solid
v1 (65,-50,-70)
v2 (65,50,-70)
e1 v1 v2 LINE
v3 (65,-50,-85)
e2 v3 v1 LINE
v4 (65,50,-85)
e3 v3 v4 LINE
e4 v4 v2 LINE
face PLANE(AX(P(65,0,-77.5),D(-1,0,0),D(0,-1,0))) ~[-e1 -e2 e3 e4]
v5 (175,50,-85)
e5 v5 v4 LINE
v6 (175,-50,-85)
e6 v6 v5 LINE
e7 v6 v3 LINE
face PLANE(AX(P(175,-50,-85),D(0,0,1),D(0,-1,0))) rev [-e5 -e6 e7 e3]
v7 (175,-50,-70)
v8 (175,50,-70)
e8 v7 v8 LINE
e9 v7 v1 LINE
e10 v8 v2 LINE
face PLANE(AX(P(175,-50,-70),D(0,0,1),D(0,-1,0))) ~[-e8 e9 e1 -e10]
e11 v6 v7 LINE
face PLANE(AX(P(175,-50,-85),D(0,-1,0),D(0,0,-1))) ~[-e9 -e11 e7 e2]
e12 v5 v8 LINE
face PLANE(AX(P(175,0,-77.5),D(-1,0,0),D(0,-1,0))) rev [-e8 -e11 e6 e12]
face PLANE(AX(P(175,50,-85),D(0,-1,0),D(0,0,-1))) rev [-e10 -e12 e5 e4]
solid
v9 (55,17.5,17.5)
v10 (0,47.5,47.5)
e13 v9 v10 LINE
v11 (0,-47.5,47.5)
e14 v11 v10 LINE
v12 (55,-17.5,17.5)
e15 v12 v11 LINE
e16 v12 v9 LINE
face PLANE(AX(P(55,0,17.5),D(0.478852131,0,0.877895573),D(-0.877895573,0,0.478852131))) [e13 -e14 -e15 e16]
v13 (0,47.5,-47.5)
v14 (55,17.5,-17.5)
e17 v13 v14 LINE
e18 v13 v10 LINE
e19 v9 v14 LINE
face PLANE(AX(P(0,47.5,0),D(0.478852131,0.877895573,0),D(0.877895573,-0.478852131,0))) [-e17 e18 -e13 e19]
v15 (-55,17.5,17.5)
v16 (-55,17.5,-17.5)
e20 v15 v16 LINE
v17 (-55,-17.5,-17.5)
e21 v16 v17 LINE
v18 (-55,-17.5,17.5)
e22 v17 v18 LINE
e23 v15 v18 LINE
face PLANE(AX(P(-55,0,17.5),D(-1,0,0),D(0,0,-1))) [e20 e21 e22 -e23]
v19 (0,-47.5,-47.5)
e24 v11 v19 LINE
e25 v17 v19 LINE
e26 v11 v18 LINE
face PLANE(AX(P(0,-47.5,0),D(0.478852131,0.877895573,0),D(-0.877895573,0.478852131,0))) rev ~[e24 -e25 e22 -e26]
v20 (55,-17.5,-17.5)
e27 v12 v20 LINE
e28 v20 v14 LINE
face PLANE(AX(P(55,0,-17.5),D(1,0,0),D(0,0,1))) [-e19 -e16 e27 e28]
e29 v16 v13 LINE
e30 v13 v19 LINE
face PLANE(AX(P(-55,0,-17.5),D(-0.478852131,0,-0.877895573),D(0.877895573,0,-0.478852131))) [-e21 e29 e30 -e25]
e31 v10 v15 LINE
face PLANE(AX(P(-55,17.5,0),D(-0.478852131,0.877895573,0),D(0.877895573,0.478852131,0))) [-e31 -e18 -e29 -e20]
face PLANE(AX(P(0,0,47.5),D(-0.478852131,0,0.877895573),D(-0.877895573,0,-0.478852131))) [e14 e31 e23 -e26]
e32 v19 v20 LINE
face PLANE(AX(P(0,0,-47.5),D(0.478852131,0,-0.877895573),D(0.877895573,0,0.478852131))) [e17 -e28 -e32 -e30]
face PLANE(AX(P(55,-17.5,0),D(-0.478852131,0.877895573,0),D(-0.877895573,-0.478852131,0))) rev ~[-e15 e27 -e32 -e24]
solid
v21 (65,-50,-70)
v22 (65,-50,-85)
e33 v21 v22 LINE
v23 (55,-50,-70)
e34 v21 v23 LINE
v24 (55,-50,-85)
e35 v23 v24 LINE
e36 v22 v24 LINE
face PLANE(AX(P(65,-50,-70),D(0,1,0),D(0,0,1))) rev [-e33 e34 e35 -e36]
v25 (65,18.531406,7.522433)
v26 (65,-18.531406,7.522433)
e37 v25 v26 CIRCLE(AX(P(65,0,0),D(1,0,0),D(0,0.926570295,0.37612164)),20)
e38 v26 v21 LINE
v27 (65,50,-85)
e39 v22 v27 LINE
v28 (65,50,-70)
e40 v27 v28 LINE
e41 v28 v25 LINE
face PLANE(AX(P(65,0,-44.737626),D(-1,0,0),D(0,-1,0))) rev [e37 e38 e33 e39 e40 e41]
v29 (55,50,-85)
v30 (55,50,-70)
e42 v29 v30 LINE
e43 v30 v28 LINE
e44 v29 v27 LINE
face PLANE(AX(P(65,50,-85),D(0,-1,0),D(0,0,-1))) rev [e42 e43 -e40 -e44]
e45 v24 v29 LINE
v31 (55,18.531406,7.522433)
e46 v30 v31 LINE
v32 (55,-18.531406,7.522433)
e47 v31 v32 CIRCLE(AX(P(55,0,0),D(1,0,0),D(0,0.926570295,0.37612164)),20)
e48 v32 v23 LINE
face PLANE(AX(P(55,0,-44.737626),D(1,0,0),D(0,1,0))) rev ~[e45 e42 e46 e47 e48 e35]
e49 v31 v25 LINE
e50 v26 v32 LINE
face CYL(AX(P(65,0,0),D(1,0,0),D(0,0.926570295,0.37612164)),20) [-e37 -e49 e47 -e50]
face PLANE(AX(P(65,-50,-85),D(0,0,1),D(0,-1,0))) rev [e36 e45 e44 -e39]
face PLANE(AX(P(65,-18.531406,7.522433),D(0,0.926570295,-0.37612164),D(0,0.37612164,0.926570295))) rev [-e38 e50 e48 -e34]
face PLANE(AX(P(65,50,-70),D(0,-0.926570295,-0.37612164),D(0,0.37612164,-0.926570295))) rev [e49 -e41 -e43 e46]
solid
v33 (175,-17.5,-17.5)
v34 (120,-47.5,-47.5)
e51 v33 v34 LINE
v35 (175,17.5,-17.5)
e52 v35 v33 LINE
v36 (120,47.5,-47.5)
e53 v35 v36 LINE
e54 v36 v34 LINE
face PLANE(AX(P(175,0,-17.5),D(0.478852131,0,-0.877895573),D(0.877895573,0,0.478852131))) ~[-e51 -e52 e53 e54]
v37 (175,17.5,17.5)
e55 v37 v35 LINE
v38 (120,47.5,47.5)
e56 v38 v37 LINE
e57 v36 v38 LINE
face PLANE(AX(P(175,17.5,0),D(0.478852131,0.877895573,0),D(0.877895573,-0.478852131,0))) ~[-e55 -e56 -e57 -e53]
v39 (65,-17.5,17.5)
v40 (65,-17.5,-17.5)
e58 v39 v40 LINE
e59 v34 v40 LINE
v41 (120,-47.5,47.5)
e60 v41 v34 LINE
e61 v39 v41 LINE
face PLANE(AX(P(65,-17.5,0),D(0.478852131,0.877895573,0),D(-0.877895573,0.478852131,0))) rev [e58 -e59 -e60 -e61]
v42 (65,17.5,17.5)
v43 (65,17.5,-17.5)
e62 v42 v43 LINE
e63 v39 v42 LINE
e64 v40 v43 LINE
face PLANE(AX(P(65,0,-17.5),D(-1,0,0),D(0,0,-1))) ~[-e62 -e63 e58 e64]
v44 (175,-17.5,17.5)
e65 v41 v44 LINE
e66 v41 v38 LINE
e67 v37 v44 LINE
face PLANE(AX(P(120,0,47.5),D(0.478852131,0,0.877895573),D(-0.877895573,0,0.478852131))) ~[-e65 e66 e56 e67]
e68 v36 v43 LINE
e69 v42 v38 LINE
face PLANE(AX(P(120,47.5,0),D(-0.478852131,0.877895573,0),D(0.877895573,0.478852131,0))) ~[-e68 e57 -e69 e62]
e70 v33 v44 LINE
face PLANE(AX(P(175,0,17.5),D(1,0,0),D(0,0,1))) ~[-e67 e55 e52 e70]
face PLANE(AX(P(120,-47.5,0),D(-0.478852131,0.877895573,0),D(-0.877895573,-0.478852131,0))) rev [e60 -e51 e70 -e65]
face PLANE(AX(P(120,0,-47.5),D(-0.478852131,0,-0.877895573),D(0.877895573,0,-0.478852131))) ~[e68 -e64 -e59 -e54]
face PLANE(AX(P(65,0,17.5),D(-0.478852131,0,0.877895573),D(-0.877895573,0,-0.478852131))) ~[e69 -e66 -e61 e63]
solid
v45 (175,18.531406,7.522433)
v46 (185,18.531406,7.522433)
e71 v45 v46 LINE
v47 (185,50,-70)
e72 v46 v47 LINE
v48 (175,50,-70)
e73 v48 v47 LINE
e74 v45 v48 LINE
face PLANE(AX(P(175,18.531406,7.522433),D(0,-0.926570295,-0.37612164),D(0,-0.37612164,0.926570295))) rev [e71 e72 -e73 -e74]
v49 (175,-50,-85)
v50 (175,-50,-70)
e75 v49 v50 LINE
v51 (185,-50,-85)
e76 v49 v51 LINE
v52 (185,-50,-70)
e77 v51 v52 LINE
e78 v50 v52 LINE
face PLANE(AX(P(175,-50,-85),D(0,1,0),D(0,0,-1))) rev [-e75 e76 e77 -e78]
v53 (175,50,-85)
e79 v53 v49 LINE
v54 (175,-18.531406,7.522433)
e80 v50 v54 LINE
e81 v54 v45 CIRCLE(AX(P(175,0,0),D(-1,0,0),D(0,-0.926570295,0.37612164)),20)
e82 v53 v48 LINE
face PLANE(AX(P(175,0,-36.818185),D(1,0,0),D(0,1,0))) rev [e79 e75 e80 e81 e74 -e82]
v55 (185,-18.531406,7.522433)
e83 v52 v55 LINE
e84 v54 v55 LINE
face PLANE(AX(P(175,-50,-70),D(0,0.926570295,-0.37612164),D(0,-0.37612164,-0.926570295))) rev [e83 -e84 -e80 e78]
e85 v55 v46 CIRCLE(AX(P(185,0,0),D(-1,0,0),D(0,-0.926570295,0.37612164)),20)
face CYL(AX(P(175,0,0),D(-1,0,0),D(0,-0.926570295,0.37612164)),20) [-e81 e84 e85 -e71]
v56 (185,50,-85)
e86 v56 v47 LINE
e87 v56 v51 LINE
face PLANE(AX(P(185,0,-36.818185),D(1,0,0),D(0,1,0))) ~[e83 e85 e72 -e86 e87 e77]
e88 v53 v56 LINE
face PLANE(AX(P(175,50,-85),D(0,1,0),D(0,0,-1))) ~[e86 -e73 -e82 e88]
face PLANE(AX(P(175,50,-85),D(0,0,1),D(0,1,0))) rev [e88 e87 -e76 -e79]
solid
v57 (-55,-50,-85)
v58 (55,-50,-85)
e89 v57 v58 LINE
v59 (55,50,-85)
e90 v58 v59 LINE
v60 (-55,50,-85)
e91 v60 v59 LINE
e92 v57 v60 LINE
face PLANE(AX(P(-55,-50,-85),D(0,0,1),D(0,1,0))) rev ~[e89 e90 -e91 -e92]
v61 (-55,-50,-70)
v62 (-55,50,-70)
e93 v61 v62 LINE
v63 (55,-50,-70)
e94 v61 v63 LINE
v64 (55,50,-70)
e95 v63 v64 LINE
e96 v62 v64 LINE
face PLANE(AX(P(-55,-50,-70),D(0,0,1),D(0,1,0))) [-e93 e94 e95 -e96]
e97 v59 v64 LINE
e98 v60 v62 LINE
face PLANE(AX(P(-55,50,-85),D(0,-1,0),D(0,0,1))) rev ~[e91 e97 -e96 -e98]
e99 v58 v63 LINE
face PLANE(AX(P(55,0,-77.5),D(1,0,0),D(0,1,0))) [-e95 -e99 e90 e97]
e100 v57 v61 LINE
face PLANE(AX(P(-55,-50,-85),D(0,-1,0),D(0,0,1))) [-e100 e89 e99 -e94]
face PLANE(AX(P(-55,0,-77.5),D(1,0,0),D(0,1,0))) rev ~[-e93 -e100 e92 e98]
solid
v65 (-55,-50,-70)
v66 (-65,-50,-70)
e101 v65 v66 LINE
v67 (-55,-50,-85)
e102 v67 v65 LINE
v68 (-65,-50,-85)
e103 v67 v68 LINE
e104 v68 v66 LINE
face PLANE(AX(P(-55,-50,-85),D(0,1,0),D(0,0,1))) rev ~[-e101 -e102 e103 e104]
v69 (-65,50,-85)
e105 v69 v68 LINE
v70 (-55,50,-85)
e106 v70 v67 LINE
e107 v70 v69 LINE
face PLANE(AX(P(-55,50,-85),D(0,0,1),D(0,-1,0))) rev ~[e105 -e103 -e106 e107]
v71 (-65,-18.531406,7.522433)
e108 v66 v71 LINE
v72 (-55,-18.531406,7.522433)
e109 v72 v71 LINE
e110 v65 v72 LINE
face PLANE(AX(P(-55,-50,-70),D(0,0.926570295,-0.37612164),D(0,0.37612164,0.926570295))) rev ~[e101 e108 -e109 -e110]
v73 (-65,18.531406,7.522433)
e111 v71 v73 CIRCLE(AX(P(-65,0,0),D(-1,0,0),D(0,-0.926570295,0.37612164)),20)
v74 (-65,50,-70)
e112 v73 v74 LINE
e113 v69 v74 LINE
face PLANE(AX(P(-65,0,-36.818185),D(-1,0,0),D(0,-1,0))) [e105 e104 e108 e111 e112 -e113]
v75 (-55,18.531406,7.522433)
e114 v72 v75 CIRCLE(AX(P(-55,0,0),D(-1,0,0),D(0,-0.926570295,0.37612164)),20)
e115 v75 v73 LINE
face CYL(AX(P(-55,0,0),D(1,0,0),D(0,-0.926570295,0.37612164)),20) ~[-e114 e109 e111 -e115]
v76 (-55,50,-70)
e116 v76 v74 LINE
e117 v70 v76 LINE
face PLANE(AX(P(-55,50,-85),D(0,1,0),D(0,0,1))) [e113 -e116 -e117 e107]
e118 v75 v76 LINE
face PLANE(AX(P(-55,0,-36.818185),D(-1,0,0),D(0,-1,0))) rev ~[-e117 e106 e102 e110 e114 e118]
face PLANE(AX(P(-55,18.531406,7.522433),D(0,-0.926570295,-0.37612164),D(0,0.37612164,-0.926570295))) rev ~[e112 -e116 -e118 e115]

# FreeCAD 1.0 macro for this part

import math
import FreeCAD as App
import Part
import Sketcher
from FreeCAD import Vector
Q = App.Units.Quantity


def add_polygon(sketch, points):
    """Adds a closed chain of lines whose ends are joined by coincident constraints."""
    first, n = sketch.GeometryCount, len(points)
    for a, b in zip(points, points[1:] + points[:1]):
        sketch.addGeometry(Part.LineSegment(App.Vector(*a, 0), App.Vector(*b, 0)), False)
    for i in range(n):
        sketch.addConstraint(Sketcher.Constraint("Coincident", first + i, 2, first + (i + 1) % n, 1))

doc = App.newDocument("Part")
params = doc.addObject("Spreadsheet::Sheet", "Params")
for row, (alias, value) in enumerate([
    ("sketch1_height", "35 mm"),
    ("pad1_length", "95 mm"),
    ("sketch2_width", "55 mm"),
    ("sketch2_height", "30 mm"),
    ("pocket1_length", "110 mm"),
    ("sketch3_radius", "20 mm"),
    ("sketch3_width", "100 mm"),
    ("sketch3_height", "15 mm"),
    ("pad2_length", "10 mm"),
    ("sketch4_radius", "20 mm"),
    ("sketch4_width", "100 mm"),
    ("sketch4_height", "15 mm"),
    ("pad3_length", "5 mm"),
    ("sketch5_width", "100 mm"),
    ("sketch5_height", "15 mm"),
    ("pad4_length", "110 mm"),
], start=1):
    params.set(f"A{row}", alias)
    params.set(f"B{row}", "=" + value)
    params.setAlias(f"B{row}", alias)

body = doc.addObject("PartDesign::Body", "Body")

# Sketch on XZ plane
sketch1 = body.newObject("Sketcher::SketchObject", "Sketch")
sketch1.AttachmentSupport = (doc.getObject("XZ_Plane"), [""])
sketch1.MapMode = "FlatFace"
add_polygon(sketch1, [(0, 47.5), (-55, 17.5), (-55, -17.5), (0, -47.5), (55, -17.5), (55, 17.5)])  # lines 0-5
sketch1.addConstraint(Sketcher.Constraint("Vertical", 1))
sketch1.addConstraint(Sketcher.Constraint("Vertical", 4))
sketch1.addConstraint(Sketcher.Constraint("Symmetric", 0, 2, 3, 2, -1, 1))
sketch1.addConstraint(Sketcher.Constraint("Symmetric", 2, 2, 5, 2, -1, 1))
sketch1.addConstraint(Sketcher.Constraint("PointOnObject", 2, 2, -2))
sketch1.addConstraint(Sketcher.Constraint("Parallel", 2, 5))
sketch1.addConstraint(Sketcher.Constraint("Horizontal", 1, 2, 3, 2))
sketch1.addConstraint(Sketcher.Constraint("DistanceY", 1, 2, 1, 1, Q("35 mm")))
sketch1.addConstraint(Sketcher.Constraint("DistanceX", 0, 2, -1, 1, Q("55 mm")))
sketch1.addConstraint(Sketcher.Constraint("DistanceY", 2, 2, 1, 2, Q("30 mm")))
sketch1.setExpression("Constraints[13]", "Params.sketch1_height")
pad1 = body.newObject("PartDesign::Pad", "Pad")
pad1.Profile = sketch1
pad1.setExpression("Length", "Params.pad1_length")
pad1.Midplane = True

# Sketch on XY plane
sketch2 = body.newObject("Sketcher::SketchObject", "Sketch001")
sketch2.AttachmentSupport = (doc.getObject("XY_Plane"), [""])
sketch2.MapMode = "FlatFace"
add_polygon(sketch2, [(-55, 17.5), (0, 47.5), (-55, 47.5)])  # lines 0-2
add_polygon(sketch2, [(55, 47.5), (0, 47.5), (55, 17.5)])  # lines 3-5
add_polygon(sketch2, [(55, -47.5), (55, -17.5), (0, -47.5)])  # lines 6-8
add_polygon(sketch2, [(0, -47.5), (-55, -17.5), (-55, -47.5)])  # lines 9-11
sketch2.addConstraint(Sketcher.Constraint("Horizontal", 1))
sketch2.addConstraint(Sketcher.Constraint("Vertical", 2))
sketch2.addConstraint(Sketcher.Constraint("Horizontal", 3))
sketch2.addConstraint(Sketcher.Constraint("Vertical", 5))
sketch2.addConstraint(Sketcher.Constraint("Vertical", 6))
sketch2.addConstraint(Sketcher.Constraint("Horizontal", 8))
sketch2.addConstraint(Sketcher.Constraint("Vertical", 10))
sketch2.addConstraint(Sketcher.Constraint("Horizontal", 11))
sketch2.addConstraint(Sketcher.Constraint("Coincident", 3, 2, 0, 2))
sketch2.addConstraint(Sketcher.Constraint("Coincident", 11, 2, 7, 2))
sketch2.addConstraint(Sketcher.Constraint("Symmetric", 2, 2, 6, 2, -1, 1))
sketch2.addConstraint(Sketcher.Constraint("Symmetric", 0, 2, 7, 2, -1, 1))
sketch2.addConstraint(Sketcher.Constraint("Symmetric", 4, 2, 9, 2, -1, 1))
sketch2.addConstraint(Sketcher.Constraint("Symmetric", 2, 2, 4, 2, -2))
sketch2.addConstraint(Sketcher.Constraint("PointOnObject", 0, 2, -2))
sketch2.addConstraint(Sketcher.Constraint("DistanceX", 1, 2, 1, 1, Q("55 mm")))
sketch2.addConstraint(Sketcher.Constraint("DistanceY", 2, 2, 2, 1, Q("30 mm")))
sketch2.addConstraint(Sketcher.Constraint("DistanceY", 6, 2, 4, 2, Q("35 mm")))
sketch2.setExpression("Constraints[27]", "Params.sketch2_width")
sketch2.setExpression("Constraints[28]", "Params.sketch2_height")
pocket1 = body.newObject("PartDesign::Pocket", "Pocket")
pocket1.Profile = sketch2
pocket1.setExpression("Length", "Params.pocket1_length")
pocket1.Midplane = True
body2 = doc.addObject("PartDesign::Body", "Body001")

# Sketch on YZ plane
sketch3 = body2.newObject("Sketcher::SketchObject", "Sketch002")
sketch3.AttachmentSupport = (doc.getObject("YZ_Plane001"), [""])
sketch3.MapMode = "FlatFace"
sketch3.AttachmentOffset = App.Placement(Vector(0, 0, -55), App.Rotation())
sketch3.addGeometry(Part.LineSegment(Vector(18.531406, 7.522433, 0), Vector(50, -70, 0)), False)
sketch3.addGeometry(Part.LineSegment(Vector(50, -70, 0), Vector(50, -85, 0)), False)
sketch3.addGeometry(Part.LineSegment(Vector(50, -85, 0), Vector(-50, -85, 0)), False)
sketch3.addGeometry(Part.LineSegment(Vector(-50, -85, 0), Vector(-50, -70, 0)), False)
sketch3.addGeometry(Part.LineSegment(Vector(-50, -70, 0), Vector(-18.531406, 7.522433, 0)), False)
sketch3.addGeometry(Part.ArcOfCircle(Part.Circle(Vector(0, 0, 0), Vector(0, 0, 1), 20), math.radians(22.093654), math.radians(157.906346)), False)
sketch3.addConstraint(Sketcher.Constraint("Coincident", 0, 2, 1, 1))
sketch3.addConstraint(Sketcher.Constraint("Coincident", 1, 2, 2, 1))
sketch3.addConstraint(Sketcher.Constraint("Coincident", 2, 2, 3, 1))
sketch3.addConstraint(Sketcher.Constraint("Coincident", 3, 2, 4, 1))
sketch3.addConstraint(Sketcher.Constraint("Tangent", 4, 2, 5, 2))
sketch3.addConstraint(Sketcher.Constraint("Tangent", 5, 1, 0, 1))
sketch3.addConstraint(Sketcher.Constraint("Vertical", 1))
sketch3.addConstraint(Sketcher.Constraint("Horizontal", 2))
sketch3.addConstraint(Sketcher.Constraint("Vertical", 3))
sketch3.addConstraint(Sketcher.Constraint("Coincident", 5, 3, -1, 1))
sketch3.addConstraint(Sketcher.Constraint("Symmetric", 0, 2, 3, 2, -2))
sketch3.addConstraint(Sketcher.Constraint("Radius", 5, Q("20 mm")))
sketch3.addConstraint(Sketcher.Constraint("DistanceX", 2, 2, 2, 1, Q("100 mm")))
sketch3.addConstraint(Sketcher.Constraint("DistanceY", 1, 2, 1, 1, Q("15 mm")))
sketch3.addConstraint(Sketcher.Constraint("DistanceY", 0, 2, -1, 1, Q("70 mm")))
sketch3.setExpression("Constraints[11]", "Params.sketch3_radius")
sketch3.setExpression("Constraints[12]", "Params.sketch3_width")
sketch3.setExpression("Constraints[13]", "Params.sketch3_height")
pad2 = body2.newObject("PartDesign::Pad", "Pad001")
pad2.Profile = sketch3
pad2.setExpression("Length", "Params.pad2_length")
pad2.Reversed = True
body3 = doc.addObject("PartDesign::Body", "Body002")

# Sketch on YZ plane
sketch4 = body3.newObject("Sketcher::SketchObject", "Sketch003")
sketch4.AttachmentSupport = (doc.getObject("YZ_Plane002"), [""])
sketch4.MapMode = "FlatFace"
sketch4.AttachmentOffset = App.Placement(Vector(0, 0, 55), App.Rotation())
sketch4.addGeometry(Part.LineSegment(Vector(-50, -85, 0), Vector(50, -85, 0)), False)
sketch4.addGeometry(Part.LineSegment(Vector(50, -85, 0), Vector(50, -70, 0)), False)
sketch4.addGeometry(Part.LineSegment(Vector(50, -70, 0), Vector(18.531406, 7.522433, 0)), False)
sketch4.addGeometry(Part.ArcOfCircle(Part.Circle(Vector(0, 0, 0), Vector(0, 0, 1), 20), math.radians(22.093654), math.radians(157.906346)), False)
sketch4.addGeometry(Part.LineSegment(Vector(-18.531406, 7.522433, 0), Vector(-50, -70, 0)), False)
sketch4.addGeometry(Part.LineSegment(Vector(-50, -70, 0), Vector(-50, -85, 0)), False)
sketch4.addConstraint(Sketcher.Constraint("Coincident", 0, 2, 1, 1))
sketch4.addConstraint(Sketcher.Constraint("Coincident", 1, 2, 2, 1))
sketch4.addConstraint(Sketcher.Constraint("Tangent", 2, 2, 3, 1))
sketch4.addConstraint(Sketcher.Constraint("Tangent", 3, 2, 4, 1))
sketch4.addConstraint(Sketcher.Constraint("Coincident", 4, 2, 5, 1))
sketch4.addConstraint(Sketcher.Constraint("Coincident", 5, 2, 0, 1))
sketch4.addConstraint(Sketcher.Constraint("Horizontal", 0))
sketch4.addConstraint(Sketcher.Constraint("Vertical", 1))
sketch4.addConstraint(Sketcher.Constraint("Vertical", 5))
sketch4.addConstraint(Sketcher.Constraint("Coincident", 3, 3, -1, 1))
sketch4.addConstraint(Sketcher.Constraint("Symmetric", 1, 2, 4, 2, -2))
sketch4.addConstraint(Sketcher.Constraint("Radius", 3, Q("20 mm")))
sketch4.addConstraint(Sketcher.Constraint("DistanceX", 0, 1, 0, 2, Q("100 mm")))
sketch4.addConstraint(Sketcher.Constraint("DistanceY", 1, 1, 1, 2, Q("15 mm")))
sketch4.addConstraint(Sketcher.Constraint("DistanceY", 0, 2, -1, 1, Q("85 mm")))
sketch4.setExpression("Constraints[11]", "Params.sketch4_radius")
sketch4.setExpression("Constraints[12]", "Params.sketch4_width")
sketch4.setExpression("Constraints[13]", "Params.sketch4_height")
pad3 = body3.newObject("PartDesign::Pad", "Pad002")
pad3.Profile = sketch4
pad3.setExpression("Length", "Params.pad3_length")
body4 = doc.addObject("PartDesign::Body", "Body003")

# Sketch on YZ plane
sketch5 = body4.newObject("Sketcher::SketchObject", "Sketch004")
sketch5.AttachmentSupport = (doc.getObject("YZ_Plane003"), [""])
sketch5.MapMode = "FlatFace"
sketch5.AttachmentOffset = App.Placement(Vector(0, 0, -55), App.Rotation())
add_polygon(sketch5, [(-50, -70), (-50, -85), (50, -85), (50, -70)])  # lines 0-3
sketch5.addConstraint(Sketcher.Constraint("Vertical", 0))
sketch5.addConstraint(Sketcher.Constraint("Horizontal", 1))
sketch5.addConstraint(Sketcher.Constraint("Vertical", 2))
sketch5.addConstraint(Sketcher.Constraint("Horizontal", 3))
sketch5.addConstraint(Sketcher.Constraint("DistanceX", 1, 1, 1, 2, Q("100 mm")))
sketch5.addConstraint(Sketcher.Constraint("DistanceY", 0, 2, 0, 1, Q("15 mm")))
sketch5.addConstraint(Sketcher.Constraint("DistanceX", 0, 2, -1, 1, Q("50 mm")))
sketch5.addConstraint(Sketcher.Constraint("DistanceY", 0, 2, -1, 1, Q("85 mm")))
sketch5.setExpression("Constraints[8]", "Params.sketch5_width")
sketch5.setExpression("Constraints[9]", "Params.sketch5_height")
pad4 = body4.newObject("PartDesign::Pad", "Pad003")
pad4.Profile = sketch5
pad4.setExpression("Length", "Params.pad4_length")
body5 = doc.addObject("PartDesign::Body", "Body004")
doc.recompute()

mirroring = doc.addObject("Part::Mirroring", "Mirroring")
mirroring.Source = body
mirroring.Base = Vector(60, 0, -43.301079)
mirroring.Normal = Vector(1, 0, 0)
body5.BaseFeature = mirroring
doc.recompute()
body6 = doc.addObject("PartDesign::Body", "Body005")
doc.recompute()

mirroring2 = doc.addObject("Part::Mirroring", "Mirroring001")
mirroring2.Source = body2
mirroring2.Base = Vector(60, 0, -43.301079)
mirroring2.Normal = Vector(1, 0, 0)
body6.BaseFeature = mirroring2
doc.recompute()
body7 = doc.addObject("PartDesign::Body", "Body006")
doc.recompute()

mirroring3 = doc.addObject("Part::Mirroring", "Mirroring002")
mirroring3.Source = body4
mirroring3.Base = Vector(60, 0, -43.301079)
mirroring3.Normal = Vector(1, 0, 0)
body7.BaseFeature = mirroring3
doc.recompute()
body8 = doc.addObject("PartDesign::Body", "Body007")
doc.recompute()

body8.BaseFeature = body3
doc.recompute()

mirroring4 = doc.addObject("Part::Mirroring", "Mirroring003")
mirroring4.Source = body3
mirroring4.Base = Vector(60, 0, -43.301079)
mirroring4.Normal = Vector(1, 0, 0)
body9 = doc.addObject("PartDesign::Body", "Body008")
body9.BaseFeature = mirroring4
boolean = body8.newObject("PartDesign::Boolean", "Boolean")
boolean.Type = "Fuse"
boolean.addObjects([body9])
doc.recompute()
mirroring.Visibility = False
mirroring2.Visibility = False
mirroring3.Visibility = False
mirroring4.Visibility = False

doc.recompute()
